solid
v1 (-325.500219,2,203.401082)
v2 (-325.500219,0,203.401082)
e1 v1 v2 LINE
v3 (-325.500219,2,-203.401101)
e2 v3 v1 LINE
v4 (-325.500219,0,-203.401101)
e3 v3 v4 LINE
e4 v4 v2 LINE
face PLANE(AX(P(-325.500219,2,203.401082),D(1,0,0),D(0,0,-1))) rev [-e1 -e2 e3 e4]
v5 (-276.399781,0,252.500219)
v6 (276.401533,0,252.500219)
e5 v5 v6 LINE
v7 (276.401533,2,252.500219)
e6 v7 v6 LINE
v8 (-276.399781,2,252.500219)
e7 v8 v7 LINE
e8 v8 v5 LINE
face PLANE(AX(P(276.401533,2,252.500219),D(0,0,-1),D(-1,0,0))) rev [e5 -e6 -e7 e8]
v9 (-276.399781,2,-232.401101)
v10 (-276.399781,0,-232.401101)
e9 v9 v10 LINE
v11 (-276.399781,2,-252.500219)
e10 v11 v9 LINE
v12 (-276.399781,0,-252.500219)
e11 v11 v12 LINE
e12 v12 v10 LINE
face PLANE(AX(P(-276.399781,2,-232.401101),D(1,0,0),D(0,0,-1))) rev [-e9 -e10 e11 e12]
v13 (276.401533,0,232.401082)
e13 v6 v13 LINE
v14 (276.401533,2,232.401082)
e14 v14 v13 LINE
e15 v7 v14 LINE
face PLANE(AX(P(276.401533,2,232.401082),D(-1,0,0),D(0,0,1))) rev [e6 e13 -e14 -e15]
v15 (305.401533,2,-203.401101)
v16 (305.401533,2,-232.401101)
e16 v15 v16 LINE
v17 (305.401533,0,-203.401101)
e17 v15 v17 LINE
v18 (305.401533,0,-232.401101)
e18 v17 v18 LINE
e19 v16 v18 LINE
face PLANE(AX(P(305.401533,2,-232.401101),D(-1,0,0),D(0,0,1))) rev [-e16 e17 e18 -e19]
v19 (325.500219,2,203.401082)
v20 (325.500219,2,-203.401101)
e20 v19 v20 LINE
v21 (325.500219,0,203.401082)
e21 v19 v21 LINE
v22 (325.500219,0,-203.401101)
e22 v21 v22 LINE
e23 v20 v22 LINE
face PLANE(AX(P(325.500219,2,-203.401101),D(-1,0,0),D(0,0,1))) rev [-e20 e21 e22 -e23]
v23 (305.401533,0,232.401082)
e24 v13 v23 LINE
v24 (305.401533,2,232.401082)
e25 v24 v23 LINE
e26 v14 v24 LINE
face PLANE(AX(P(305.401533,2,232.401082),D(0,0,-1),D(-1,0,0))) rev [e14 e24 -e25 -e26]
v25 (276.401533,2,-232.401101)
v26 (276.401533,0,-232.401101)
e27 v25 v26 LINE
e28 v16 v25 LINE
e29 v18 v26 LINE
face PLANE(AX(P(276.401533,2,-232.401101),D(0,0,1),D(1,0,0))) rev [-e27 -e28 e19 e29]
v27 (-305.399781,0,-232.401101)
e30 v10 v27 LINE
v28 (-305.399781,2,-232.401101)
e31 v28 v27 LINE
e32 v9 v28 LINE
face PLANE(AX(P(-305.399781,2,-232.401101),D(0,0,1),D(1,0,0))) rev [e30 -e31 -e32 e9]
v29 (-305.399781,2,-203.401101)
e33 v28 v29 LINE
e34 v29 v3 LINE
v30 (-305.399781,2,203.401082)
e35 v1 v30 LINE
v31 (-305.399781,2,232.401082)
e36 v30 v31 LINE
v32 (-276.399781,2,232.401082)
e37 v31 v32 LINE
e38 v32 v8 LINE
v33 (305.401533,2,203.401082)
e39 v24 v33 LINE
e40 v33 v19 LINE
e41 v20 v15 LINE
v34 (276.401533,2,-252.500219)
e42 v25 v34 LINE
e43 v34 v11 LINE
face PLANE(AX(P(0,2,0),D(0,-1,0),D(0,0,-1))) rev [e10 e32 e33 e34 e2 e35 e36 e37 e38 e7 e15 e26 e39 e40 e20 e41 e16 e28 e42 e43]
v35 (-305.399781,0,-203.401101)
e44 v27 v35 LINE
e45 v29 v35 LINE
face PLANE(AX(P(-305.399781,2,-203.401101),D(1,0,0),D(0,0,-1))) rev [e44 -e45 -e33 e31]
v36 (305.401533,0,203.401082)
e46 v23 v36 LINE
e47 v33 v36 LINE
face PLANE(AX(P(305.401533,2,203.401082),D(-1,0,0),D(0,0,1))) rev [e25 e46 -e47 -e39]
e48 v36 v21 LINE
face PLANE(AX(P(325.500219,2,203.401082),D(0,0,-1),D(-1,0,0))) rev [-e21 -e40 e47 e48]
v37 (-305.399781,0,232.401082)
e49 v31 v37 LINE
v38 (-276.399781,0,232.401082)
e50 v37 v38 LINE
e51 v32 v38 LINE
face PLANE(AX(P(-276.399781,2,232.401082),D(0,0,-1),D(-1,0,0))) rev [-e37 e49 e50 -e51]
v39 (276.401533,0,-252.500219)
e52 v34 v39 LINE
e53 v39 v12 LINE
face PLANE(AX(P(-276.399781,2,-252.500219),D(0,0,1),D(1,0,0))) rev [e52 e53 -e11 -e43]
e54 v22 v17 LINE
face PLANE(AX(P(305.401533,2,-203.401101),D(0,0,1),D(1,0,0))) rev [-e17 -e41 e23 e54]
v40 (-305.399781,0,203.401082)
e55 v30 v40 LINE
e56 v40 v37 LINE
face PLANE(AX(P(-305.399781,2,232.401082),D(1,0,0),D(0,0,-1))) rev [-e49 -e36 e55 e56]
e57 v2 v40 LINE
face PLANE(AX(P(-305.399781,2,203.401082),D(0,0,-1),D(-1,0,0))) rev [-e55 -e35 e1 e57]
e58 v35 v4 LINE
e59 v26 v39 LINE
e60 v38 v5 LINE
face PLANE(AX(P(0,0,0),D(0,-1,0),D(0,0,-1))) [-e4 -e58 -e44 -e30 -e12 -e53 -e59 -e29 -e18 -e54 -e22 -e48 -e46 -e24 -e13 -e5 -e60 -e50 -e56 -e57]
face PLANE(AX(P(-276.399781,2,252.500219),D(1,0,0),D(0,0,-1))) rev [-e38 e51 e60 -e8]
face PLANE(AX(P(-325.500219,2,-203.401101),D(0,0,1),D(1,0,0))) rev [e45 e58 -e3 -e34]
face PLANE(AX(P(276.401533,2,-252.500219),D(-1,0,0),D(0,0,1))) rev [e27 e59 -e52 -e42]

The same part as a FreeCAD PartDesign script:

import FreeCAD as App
import Part
import Sketcher
Q = App.Units.Quantity


def add_polygon(sketch, points):
    """Adds a closed chain of lines whose ends are joined by coincident constraints."""
    first, n = sketch.GeometryCount, len(points)
    for a, b in zip(points, points[1:] + points[:1]):
        sketch.addGeometry(Part.LineSegment(App.Vector(*a, 0), App.Vector(*b, 0)), False)
    for i in range(n):
        sketch.addConstraint(Sketcher.Constraint("Coincident", first + i, 2, first + (i + 1) % n, 1))

doc = App.newDocument("Part")
body = doc.addObject("PartDesign::Body", "Body")

sketch1 = body.newObject("Sketcher::SketchObject", "Sketch")
sketch1.AttachmentSupport = (doc.getObject("XZ_Plane"), [""])
sketch1.MapMode = "FlatFace"
add_polygon(sketch1, [(-276, 232), (-276, 253), (276, 253), (276, 232), (305, 232), (305, 203), (326, 203), (326, -203), (305, -203), (305, -232), (276, -232), (276, -253), (-276, -253), (-276, -232), (-305, -232), (-305, -203), (-326, -203), (-326, 203), (-305, 203), (-305, 232)])
sketch1.addConstraint(Sketcher.Constraint("Vertical", 0))
sketch1.addConstraint(Sketcher.Constraint("Horizontal", 1))
sketch1.addConstraint(Sketcher.Constraint("Vertical", 2))
sketch1.addConstraint(Sketcher.Constraint("Horizontal", 3))
sketch1.addConstraint(Sketcher.Constraint("Vertical", 4))
sketch1.addConstraint(Sketcher.Constraint("Horizontal", 5))
sketch1.addConstraint(Sketcher.Constraint("Vertical", 6))
sketch1.addConstraint(Sketcher.Constraint("Horizontal", 7))
sketch1.addConstraint(Sketcher.Constraint("Vertical", 8))
sketch1.addConstraint(Sketcher.Constraint("Horizontal", 9))
sketch1.addConstraint(Sketcher.Constraint("Vertical", 10))
sketch1.addConstraint(Sketcher.Constraint("Horizontal", 11))
sketch1.addConstraint(Sketcher.Constraint("Vertical", 12))
sketch1.addConstraint(Sketcher.Constraint("Horizontal", 13))
sketch1.addConstraint(Sketcher.Constraint("Vertical", 14))
sketch1.addConstraint(Sketcher.Constraint("Horizontal", 15))
sketch1.addConstraint(Sketcher.Constraint("Vertical", 16))
sketch1.addConstraint(Sketcher.Constraint("Horizontal", 17))
sketch1.addConstraint(Sketcher.Constraint("Vertical", 18))
sketch1.addConstraint(Sketcher.Constraint("Horizontal", 19))
sketch1.addConstraint(Sketcher.Constraint("Symmetric", 6, 2, 15, 2, -2))
sketch1.addConstraint(Sketcher.Constraint("Symmetric", 1, 2, 10, 2, -1))
sketch1.addConstraint(Sketcher.Constraint("Horizontal", 9, 2, 12, 2))
sketch1.addConstraint(Sketcher.Constraint("Horizontal", 5, 2, 16, 2))
sketch1.addConstraint(Sketcher.Constraint("Horizontal", 3, 2, 18, 2))
sketch1.addConstraint(Sketcher.Constraint("Vertical", 4, 2, 7, 2))
sketch1.addConstraint(Sketcher.Constraint("Vertical", 0, 2, 11, 2))
sketch1.addConstraint(Sketcher.Constraint("Vertical", 14, 2, 17, 2))
sketch1.addConstraint(Sketcher.Constraint("Equal", 9, 13))
sketch1.addConstraint(Sketcher.Constraint("Equal", 19, 4))
sketch1.addConstraint(Sketcher.Constraint("Equal", 4, 8))
sketch1.addConstraint(Sketcher.Constraint("DistanceX", 3, 1, 3, 2, Q("29 mm")))
sketch1.addConstraint(Sketcher.Constraint("DistanceX", 0, 2, 5, 2, Q("601.9 mm")))
sketch1.addConstraint(Sketcher.Constraint("DistanceY", 6, 2, -1, 1, Q("203.401101 mm")))
sketch1.addConstraint(Sketcher.Constraint("DistanceY", 10, 2, 4, 2, Q("455.9013 mm")))
sketch1.addConstraint(Sketcher.Constraint("DistanceX", 1, 1, 1, 2, Q("552.801315 mm")))
sketch1.addConstraint(Sketcher.Constraint("DistanceX", 15, 2, 15, 1, Q("20.100437 mm")))
sketch1.addConstraint(Sketcher.Constraint("DistanceY", 0, 1, 0, 2, Q("20.099137 mm")))
pad1 = body.newObject("PartDesign::Pad", "Pad")
pad1.Profile = sketch1
pad1.Length = 2
pad1.Reversed = True

doc.recompute()
